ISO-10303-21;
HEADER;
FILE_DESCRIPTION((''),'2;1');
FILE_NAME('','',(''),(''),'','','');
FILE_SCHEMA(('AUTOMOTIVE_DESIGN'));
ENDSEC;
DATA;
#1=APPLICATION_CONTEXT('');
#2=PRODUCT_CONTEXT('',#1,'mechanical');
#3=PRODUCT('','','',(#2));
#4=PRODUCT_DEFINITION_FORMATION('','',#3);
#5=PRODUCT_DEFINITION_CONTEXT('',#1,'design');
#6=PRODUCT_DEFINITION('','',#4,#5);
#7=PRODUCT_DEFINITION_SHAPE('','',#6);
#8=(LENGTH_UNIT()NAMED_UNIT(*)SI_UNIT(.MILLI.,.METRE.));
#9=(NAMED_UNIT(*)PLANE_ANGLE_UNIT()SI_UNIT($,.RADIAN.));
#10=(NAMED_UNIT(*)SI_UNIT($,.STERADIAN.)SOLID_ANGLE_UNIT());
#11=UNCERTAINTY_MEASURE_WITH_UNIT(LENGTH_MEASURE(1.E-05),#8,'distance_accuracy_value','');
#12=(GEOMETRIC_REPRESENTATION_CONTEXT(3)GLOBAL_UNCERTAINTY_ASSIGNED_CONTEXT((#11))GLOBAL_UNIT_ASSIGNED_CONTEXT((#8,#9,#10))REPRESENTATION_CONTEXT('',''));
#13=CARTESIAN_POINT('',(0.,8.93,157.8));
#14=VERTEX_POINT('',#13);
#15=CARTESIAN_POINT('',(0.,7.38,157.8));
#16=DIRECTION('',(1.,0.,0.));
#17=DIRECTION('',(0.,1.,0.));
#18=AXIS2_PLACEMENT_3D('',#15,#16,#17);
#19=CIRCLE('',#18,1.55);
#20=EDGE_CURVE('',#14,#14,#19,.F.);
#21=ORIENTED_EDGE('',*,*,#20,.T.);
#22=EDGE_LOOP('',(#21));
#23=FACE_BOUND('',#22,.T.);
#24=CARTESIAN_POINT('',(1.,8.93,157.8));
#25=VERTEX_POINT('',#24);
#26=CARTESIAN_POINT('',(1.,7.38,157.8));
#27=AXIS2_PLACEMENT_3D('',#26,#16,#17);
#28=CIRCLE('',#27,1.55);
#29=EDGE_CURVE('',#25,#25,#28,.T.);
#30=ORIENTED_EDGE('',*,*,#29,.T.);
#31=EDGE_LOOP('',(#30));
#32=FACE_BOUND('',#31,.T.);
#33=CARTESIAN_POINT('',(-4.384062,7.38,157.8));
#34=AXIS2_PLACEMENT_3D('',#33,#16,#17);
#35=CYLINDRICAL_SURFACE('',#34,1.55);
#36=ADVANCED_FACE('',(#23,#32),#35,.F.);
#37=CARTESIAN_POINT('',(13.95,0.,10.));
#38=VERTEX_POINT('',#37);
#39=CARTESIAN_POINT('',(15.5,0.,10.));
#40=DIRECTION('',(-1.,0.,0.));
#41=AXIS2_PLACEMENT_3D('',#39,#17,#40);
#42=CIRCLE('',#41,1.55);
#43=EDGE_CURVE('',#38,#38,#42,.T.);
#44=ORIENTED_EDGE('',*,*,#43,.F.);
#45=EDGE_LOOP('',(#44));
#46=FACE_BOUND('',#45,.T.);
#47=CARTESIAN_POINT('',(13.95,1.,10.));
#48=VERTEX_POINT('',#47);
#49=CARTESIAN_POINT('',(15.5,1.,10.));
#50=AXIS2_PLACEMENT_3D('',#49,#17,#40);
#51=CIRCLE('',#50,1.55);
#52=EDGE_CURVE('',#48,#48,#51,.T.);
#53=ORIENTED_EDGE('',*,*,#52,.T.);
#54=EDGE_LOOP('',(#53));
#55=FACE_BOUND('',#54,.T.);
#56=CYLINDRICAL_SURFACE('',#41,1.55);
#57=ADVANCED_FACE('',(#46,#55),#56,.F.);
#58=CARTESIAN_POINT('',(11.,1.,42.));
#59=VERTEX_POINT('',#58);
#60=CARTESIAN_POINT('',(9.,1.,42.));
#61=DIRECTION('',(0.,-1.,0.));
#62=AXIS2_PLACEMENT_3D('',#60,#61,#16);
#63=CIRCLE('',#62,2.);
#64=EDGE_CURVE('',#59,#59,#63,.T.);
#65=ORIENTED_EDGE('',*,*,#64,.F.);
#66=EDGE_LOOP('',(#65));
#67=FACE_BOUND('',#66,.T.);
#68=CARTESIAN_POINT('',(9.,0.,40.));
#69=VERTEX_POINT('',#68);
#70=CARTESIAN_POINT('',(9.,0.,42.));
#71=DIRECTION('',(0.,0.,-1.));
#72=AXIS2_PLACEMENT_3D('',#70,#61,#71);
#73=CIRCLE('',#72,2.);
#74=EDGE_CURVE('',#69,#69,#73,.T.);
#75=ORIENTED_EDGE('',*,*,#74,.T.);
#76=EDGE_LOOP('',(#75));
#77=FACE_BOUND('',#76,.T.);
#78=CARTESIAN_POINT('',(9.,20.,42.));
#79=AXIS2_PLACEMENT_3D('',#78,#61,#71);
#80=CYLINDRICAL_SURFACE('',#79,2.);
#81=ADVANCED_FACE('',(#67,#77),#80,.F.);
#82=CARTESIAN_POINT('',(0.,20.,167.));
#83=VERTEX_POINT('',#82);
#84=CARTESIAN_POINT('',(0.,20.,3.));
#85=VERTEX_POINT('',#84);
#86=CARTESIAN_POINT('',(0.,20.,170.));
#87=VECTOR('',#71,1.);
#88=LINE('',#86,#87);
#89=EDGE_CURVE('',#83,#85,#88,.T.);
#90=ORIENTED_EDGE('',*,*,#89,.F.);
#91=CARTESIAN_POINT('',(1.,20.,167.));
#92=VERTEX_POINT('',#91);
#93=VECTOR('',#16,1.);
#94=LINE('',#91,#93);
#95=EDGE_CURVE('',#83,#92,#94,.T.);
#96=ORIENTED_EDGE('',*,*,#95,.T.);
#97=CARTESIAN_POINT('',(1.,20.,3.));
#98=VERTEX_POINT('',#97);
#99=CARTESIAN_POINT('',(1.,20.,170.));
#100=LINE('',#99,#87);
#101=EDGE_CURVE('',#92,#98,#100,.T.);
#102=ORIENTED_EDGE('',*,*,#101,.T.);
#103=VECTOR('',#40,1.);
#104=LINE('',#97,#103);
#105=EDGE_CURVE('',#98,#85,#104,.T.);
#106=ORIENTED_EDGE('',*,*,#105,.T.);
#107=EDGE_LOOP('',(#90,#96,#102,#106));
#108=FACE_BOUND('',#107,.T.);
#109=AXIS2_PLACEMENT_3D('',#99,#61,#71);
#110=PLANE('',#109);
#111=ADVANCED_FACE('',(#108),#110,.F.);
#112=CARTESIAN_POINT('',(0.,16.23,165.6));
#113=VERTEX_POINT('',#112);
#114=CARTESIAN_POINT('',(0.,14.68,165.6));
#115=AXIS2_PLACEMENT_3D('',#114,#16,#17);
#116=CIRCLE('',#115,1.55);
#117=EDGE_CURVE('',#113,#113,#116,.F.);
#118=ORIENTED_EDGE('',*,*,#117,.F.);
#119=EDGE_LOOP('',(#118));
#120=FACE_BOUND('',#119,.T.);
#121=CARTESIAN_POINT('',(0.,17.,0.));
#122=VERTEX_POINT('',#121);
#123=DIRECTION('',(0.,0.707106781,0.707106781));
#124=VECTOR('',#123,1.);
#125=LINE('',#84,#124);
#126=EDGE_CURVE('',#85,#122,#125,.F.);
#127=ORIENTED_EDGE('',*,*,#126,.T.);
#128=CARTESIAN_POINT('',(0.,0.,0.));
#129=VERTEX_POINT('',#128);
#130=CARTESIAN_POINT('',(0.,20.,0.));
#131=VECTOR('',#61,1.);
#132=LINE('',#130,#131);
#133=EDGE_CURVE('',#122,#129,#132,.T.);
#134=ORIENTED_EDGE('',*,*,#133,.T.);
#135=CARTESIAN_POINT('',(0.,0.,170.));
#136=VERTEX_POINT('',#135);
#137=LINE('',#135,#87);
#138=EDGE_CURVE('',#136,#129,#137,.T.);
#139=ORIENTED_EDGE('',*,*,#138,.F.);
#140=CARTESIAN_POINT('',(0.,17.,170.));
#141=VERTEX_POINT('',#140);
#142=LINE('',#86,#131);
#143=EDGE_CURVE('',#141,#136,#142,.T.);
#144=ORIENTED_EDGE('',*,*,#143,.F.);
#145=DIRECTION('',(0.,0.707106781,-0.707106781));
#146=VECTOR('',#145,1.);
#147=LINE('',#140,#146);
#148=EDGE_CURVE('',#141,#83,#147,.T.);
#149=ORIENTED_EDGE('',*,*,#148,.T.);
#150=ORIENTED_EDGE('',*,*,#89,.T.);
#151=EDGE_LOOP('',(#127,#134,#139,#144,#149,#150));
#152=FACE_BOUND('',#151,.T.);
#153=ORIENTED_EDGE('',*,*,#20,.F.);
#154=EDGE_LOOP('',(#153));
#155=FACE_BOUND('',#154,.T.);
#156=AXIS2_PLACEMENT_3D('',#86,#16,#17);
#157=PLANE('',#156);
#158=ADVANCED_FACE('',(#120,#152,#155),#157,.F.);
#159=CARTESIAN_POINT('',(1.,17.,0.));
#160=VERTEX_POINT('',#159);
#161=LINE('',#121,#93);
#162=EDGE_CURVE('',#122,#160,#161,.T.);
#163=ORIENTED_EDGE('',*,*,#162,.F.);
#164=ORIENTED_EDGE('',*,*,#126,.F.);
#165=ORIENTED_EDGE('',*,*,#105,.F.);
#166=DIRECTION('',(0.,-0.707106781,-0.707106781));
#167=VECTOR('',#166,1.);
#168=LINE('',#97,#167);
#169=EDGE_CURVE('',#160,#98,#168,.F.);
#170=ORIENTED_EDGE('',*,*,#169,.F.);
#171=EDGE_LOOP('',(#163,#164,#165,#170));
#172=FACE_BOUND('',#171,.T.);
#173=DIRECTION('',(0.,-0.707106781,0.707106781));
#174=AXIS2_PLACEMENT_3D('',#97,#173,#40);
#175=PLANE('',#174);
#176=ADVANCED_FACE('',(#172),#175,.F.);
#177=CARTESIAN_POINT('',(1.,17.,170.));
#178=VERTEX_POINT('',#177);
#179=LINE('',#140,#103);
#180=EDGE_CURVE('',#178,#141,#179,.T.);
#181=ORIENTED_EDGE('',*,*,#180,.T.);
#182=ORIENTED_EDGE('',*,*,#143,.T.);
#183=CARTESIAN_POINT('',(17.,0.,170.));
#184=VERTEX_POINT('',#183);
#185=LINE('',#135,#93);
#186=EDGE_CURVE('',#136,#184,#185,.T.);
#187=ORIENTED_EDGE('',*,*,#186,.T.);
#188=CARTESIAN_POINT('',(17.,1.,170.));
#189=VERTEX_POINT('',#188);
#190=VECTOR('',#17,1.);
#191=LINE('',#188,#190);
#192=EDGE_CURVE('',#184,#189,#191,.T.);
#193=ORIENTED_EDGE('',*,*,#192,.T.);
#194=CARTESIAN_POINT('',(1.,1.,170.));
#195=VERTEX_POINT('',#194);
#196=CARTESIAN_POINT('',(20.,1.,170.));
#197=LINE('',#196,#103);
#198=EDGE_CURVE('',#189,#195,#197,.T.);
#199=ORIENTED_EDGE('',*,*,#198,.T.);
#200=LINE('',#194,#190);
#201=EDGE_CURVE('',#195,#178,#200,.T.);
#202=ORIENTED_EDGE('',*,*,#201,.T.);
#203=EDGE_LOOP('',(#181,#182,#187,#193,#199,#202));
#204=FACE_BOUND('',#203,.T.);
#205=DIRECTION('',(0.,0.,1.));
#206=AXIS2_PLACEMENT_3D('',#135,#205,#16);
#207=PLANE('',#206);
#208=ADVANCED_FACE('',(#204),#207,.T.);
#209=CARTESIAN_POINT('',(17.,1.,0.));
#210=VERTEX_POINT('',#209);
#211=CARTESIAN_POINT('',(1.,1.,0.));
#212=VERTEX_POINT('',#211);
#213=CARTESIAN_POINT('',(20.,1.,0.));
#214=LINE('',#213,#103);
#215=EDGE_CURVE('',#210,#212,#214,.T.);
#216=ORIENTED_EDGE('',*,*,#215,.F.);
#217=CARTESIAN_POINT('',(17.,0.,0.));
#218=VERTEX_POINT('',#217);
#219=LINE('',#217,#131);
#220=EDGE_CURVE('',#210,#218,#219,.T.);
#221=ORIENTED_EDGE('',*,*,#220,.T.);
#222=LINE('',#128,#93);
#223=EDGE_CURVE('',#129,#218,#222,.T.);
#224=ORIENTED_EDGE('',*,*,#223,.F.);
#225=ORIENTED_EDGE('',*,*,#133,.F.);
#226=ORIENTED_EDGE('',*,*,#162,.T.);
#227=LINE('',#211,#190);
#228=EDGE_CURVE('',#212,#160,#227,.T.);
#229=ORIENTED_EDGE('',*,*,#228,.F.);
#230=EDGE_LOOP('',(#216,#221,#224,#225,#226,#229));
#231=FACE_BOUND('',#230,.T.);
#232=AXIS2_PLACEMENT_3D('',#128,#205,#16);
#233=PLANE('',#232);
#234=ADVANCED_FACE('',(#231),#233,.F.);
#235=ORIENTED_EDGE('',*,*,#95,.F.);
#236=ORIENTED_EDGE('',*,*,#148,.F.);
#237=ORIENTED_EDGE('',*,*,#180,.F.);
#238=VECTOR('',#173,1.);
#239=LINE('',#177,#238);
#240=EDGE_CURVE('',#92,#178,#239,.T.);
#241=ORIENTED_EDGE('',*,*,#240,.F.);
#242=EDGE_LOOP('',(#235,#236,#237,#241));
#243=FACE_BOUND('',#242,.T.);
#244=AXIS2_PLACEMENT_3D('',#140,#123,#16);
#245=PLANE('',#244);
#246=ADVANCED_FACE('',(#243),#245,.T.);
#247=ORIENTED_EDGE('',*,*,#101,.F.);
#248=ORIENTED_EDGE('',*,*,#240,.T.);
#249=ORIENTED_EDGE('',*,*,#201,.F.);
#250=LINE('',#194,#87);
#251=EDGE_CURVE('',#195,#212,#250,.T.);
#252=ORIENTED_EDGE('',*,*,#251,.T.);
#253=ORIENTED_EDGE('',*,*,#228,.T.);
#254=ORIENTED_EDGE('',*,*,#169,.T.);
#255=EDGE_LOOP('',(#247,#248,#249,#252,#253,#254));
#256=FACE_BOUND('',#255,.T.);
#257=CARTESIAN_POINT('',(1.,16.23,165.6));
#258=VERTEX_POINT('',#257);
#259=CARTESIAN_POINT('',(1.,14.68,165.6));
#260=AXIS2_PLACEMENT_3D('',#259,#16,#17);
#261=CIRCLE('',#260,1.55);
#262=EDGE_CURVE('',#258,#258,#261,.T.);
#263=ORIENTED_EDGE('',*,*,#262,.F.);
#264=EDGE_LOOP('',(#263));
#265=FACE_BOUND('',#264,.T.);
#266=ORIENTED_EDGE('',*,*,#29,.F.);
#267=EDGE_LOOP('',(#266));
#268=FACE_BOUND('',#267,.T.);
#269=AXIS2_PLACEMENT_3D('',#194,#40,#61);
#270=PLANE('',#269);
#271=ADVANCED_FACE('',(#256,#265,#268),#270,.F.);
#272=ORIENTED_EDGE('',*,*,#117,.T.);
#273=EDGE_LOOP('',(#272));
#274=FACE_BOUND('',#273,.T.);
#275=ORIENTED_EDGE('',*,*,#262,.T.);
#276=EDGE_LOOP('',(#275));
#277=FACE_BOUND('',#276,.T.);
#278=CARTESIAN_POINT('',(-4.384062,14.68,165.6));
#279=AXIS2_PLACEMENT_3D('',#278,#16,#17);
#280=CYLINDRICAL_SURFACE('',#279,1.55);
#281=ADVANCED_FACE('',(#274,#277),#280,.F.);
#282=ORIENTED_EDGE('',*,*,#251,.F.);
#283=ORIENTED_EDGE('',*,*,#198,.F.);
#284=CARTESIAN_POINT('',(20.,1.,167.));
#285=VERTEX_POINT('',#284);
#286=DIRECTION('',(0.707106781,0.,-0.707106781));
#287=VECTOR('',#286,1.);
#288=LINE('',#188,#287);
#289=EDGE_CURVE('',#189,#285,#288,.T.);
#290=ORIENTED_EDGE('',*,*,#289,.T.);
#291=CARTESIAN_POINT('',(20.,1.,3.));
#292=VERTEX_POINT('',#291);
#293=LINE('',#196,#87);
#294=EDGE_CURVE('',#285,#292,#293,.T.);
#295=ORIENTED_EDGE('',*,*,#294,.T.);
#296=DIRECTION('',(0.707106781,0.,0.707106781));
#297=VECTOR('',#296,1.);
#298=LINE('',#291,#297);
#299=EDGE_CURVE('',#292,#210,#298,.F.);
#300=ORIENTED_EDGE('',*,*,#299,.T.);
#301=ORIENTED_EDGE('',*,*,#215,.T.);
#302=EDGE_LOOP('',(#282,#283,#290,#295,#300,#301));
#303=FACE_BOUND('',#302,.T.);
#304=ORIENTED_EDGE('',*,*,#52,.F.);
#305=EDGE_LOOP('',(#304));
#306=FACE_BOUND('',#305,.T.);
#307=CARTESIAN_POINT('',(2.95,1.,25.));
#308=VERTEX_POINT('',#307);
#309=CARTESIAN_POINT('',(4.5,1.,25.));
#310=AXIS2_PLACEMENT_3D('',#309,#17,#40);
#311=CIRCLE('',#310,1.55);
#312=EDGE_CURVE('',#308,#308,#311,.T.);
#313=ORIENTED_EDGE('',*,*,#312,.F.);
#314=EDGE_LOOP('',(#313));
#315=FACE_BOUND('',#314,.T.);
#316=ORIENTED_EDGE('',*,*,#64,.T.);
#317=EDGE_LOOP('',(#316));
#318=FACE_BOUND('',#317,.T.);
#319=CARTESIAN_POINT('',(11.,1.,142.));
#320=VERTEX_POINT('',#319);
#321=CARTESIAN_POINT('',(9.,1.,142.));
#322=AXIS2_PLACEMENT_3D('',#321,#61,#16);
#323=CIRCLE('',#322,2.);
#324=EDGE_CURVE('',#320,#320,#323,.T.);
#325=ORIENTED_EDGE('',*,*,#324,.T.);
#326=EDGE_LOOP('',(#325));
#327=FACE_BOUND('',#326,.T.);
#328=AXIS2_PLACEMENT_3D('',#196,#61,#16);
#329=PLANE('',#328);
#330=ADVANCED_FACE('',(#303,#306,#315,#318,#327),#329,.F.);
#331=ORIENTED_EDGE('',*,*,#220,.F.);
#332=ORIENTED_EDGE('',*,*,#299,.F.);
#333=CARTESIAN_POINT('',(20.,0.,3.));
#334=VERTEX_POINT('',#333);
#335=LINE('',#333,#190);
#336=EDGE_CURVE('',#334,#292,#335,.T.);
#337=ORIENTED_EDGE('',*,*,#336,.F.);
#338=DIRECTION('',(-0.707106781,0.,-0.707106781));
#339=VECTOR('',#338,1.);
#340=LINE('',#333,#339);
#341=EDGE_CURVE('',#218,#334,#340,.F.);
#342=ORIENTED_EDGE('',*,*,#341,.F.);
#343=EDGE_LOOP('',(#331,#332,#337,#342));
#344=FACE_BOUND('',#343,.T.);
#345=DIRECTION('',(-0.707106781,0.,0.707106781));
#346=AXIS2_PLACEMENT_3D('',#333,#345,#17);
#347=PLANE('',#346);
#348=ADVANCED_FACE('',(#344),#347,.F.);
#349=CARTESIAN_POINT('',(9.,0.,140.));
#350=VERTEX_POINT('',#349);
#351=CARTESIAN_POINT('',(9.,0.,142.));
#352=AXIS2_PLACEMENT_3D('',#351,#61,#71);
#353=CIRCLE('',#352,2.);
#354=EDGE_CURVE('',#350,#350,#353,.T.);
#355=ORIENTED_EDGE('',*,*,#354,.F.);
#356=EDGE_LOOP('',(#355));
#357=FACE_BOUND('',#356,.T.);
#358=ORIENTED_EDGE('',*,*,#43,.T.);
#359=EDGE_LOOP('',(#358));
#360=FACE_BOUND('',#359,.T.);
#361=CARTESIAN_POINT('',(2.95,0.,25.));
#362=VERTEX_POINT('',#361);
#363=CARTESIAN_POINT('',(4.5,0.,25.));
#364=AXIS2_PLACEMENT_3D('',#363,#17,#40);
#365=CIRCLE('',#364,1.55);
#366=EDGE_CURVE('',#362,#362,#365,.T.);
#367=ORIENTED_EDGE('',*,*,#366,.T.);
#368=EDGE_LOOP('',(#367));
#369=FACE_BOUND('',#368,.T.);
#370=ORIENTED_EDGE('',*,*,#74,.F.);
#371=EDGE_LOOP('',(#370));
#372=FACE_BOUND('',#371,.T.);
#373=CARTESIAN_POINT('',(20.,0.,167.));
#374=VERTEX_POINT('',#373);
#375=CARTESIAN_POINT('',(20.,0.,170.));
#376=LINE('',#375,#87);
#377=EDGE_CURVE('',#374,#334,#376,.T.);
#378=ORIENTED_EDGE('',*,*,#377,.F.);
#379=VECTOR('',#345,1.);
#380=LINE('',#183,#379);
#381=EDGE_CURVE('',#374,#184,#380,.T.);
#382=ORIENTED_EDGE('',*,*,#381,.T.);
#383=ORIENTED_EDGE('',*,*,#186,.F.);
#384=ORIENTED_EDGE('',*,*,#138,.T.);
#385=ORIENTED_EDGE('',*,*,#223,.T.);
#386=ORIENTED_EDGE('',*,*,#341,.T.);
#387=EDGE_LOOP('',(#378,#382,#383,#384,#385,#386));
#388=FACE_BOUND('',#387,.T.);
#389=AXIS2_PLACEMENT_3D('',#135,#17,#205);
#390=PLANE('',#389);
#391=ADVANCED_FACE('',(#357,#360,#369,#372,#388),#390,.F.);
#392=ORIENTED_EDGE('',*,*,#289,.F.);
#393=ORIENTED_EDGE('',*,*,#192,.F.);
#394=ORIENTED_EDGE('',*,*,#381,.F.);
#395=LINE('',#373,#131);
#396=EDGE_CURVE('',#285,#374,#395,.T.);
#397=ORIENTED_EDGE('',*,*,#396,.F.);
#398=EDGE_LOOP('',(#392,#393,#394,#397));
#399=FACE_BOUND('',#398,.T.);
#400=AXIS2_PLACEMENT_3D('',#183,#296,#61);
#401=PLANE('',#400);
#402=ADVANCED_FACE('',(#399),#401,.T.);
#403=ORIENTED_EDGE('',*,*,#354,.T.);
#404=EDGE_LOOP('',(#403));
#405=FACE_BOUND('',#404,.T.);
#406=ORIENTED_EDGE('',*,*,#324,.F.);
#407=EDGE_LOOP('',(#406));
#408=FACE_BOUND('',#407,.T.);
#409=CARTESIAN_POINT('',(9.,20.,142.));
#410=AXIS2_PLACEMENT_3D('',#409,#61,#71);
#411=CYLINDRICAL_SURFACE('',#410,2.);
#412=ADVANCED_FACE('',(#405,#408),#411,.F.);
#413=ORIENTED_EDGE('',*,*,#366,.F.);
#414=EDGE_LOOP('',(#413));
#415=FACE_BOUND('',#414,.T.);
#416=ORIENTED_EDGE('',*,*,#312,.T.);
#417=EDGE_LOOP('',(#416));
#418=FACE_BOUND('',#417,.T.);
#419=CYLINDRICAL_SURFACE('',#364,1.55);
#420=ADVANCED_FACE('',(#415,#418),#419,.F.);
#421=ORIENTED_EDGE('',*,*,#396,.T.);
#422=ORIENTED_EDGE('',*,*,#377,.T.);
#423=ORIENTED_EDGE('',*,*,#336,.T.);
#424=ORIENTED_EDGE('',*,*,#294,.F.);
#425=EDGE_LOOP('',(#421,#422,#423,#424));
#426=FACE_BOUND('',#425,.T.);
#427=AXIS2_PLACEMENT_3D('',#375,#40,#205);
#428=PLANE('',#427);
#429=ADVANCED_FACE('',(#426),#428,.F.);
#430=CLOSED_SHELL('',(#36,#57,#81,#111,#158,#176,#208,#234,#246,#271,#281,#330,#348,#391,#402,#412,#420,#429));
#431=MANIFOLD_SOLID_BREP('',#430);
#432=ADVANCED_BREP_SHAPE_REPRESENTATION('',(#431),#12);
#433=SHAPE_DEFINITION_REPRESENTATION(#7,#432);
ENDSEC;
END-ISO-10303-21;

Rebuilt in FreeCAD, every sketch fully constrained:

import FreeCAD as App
import Part
import Sketcher
Q = App.Units.Quantity


def edges_at(feature, points):
    """Names of the edges that pass closest to the given points."""
    edges = feature.Shape.Edges
    near = lambda p: min(range(len(edges)), key=lambda i: edges[i].distToShape(Part.Vertex(*p))[0])
    return sorted({f"Edge{near(p) + 1}" for p in points})

doc = App.newDocument("Part")
body = doc.addObject("PartDesign::Body", "Body")

# Sketch on XY plane
sketch1 = doc.addObject("Sketcher::SketchObject", "Sketch")
body.addObject(sketch1)
sketch1.AttachmentSupport = (doc.XY_Plane, [""])
sketch1.MapMode = "FlatFace"
sketch1.addGeometry(Part.LineSegment(App.Vector(0, 0, 0), App.Vector(20, 0, 0)), False)
sketch1.addGeometry(Part.LineSegment(App.Vector(20, 0, 0), App.Vector(20, 1, 0)), False)
sketch1.addGeometry(Part.LineSegment(App.Vector(20, 1, 0), App.Vector(1, 1, 0)), False)
sketch1.addGeometry(Part.LineSegment(App.Vector(1, 1, 0), App.Vector(1, 20, 0)), False)
sketch1.addGeometry(Part.LineSegment(App.Vector(1, 20, 0), App.Vector(0, 20, 0)), False)
sketch1.addGeometry(Part.LineSegment(App.Vector(0, 20, 0), App.Vector(0, 0, 0)), False)
sketch1.addConstraint(Sketcher.Constraint("Coincident", 0, 2, 1, 1))
sketch1.addConstraint(Sketcher.Constraint("Coincident", 1, 2, 2, 1))
sketch1.addConstraint(Sketcher.Constraint("Coincident", 2, 2, 3, 1))
sketch1.addConstraint(Sketcher.Constraint("Coincident", 3, 2, 4, 1))
sketch1.addConstraint(Sketcher.Constraint("Coincident", 4, 2, 5, 1))
sketch1.addConstraint(Sketcher.Constraint("Coincident", 5, 2, 0, 1))
sketch1.addConstraint(Sketcher.Constraint("Horizontal", 0))
sketch1.addConstraint(Sketcher.Constraint("Vertical", 1))
sketch1.addConstraint(Sketcher.Constraint("Horizontal", 2))
sketch1.addConstraint(Sketcher.Constraint("Vertical", 3))
sketch1.addConstraint(Sketcher.Constraint("Horizontal", 4))
sketch1.addConstraint(Sketcher.Constraint("Vertical", 5))
sketch1.addConstraint(Sketcher.Constraint("Coincident", 5, 2, -1, 1))
sketch1.addConstraint(Sketcher.Constraint("Equal", 4, 1))
sketch1.addConstraint(Sketcher.Constraint("Equal", 2, 3))
sketch1.addConstraint(Sketcher.Constraint("DistanceX", 0, 1, 0, 2, Q("20 mm")))
sketch1.addConstraint(Sketcher.Constraint("DistanceX", 2, 2, 2, 1, Q("19 mm")))
pad1 = doc.addObject("PartDesign::Pad", "Pad")
body.addObject(pad1)
pad1.Profile = sketch1
pad1.Length = 170
doc.recompute()

chamfer = doc.addObject("PartDesign::Chamfer", "Chamfer")
body.addObject(chamfer)
chamfer.Base = (pad1, edges_at(pad1, [
    (20, 0.5, 170),
    (0.5, 20, 170),
    (0.5, 20, 0),
    (20, 0.5, 0),
]))
chamfer.Size = 3

# Sketch on XZ plane
sketch2 = doc.addObject("Sketcher::SketchObject", "Sketch001")
body.addObject(sketch2)
sketch2.AttachmentSupport = (doc.XZ_Plane, [""])
sketch2.MapMode = "FlatFace"
sketch2.AttachmentOffset = App.Placement(App.Vector(0, 0, -1), App.Rotation())
sketch2.addGeometry(Part.Circle(App.Vector(15.5, 10, 0), App.Vector(0, 0, 1), 1.55), False)
sketch2.addGeometry(Part.Circle(App.Vector(4.5, 25, 0), App.Vector(0, 0, 1), 1.55), False)
sketch2.addConstraint(Sketcher.Constraint("Equal", 0, 1))
sketch2.addConstraint(Sketcher.Constraint("Diameter", 0, Q("3.1 mm")))
sketch2.addConstraint(Sketcher.Constraint("DistanceY", -1, 1, 0, 3, Q("10 mm")))
sketch2.addConstraint(Sketcher.Constraint("DistanceY", -1, 1, 1, 3, Q("25 mm")))
sketch2.addConstraint(Sketcher.Constraint("DistanceX", 1, 3, 0, 3, Q("11 mm")))
sketch2.addConstraint(Sketcher.Constraint("DistanceX", -1, 1, 0, 3, Q("15.5 mm")))
pocket1 = doc.addObject("PartDesign::Pocket", "Pocket")
body.addObject(pocket1)
pocket1.Profile = sketch2
pocket1.Type = "ThroughAll"
pocket1.Reversed = True

# Sketch on YZ plane
sketch3 = doc.addObject("Sketcher::SketchObject", "Sketch002")
body.addObject(sketch3)
sketch3.AttachmentSupport = (doc.YZ_Plane, [""])
sketch3.MapMode = "FlatFace"
sketch3.AttachmentOffset = App.Placement(App.Vector(0, 0, 1), App.Rotation())
sketch3.addGeometry(Part.Circle(App.Vector(14.68, 165.6, 0), App.Vector(0, 0, 1), 1.55), False)
sketch3.addGeometry(Part.Circle(App.Vector(7.38, 157.8, 0), App.Vector(0, 0, 1), 1.55), False)
sketch3.addConstraint(Sketcher.Constraint("Equal", 0, 1))
sketch3.addConstraint(Sketcher.Constraint("Diameter", 0, Q("3.1 mm")))
sketch3.addConstraint(Sketcher.Constraint("DistanceY", -1, 1, 0, 3, Q("165.6 mm")))
sketch3.addConstraint(Sketcher.Constraint("DistanceY", -1, 1, 1, 3, Q("157.8 mm")))
sketch3.addConstraint(Sketcher.Constraint("DistanceX", 1, 3, 0, 3, Q("7.3 mm")))
sketch3.addConstraint(Sketcher.Constraint("DistanceX", -1, 1, 0, 3, Q("14.68 mm")))
pocket2 = doc.addObject("PartDesign::Pocket", "Pocket001")
body.addObject(pocket2)
pocket2.Profile = sketch3
pocket2.Length = 1

# Sketch on XZ plane
sketch4 = doc.addObject("Sketcher::SketchObject", "Sketch003")
body.addObject(sketch4)
sketch4.AttachmentSupport = (doc.XZ_Plane, [""])
sketch4.MapMode = "FlatFace"
sketch4.addGeometry(Part.Circle(App.Vector(9, 142, 0), App.Vector(0, 0, 1), 2), False)
sketch4.addGeometry(Part.Circle(App.Vector(9, 42, 0), App.Vector(0, 0, 1), 2), False)
sketch4.addConstraint(Sketcher.Constraint("Equal", 0, 1))
sketch4.addConstraint(Sketcher.Constraint("Vertical", 0, 3, 1, 3))
sketch4.addConstraint(Sketcher.Constraint("Diameter", 0, Q("4 mm")))
sketch4.addConstraint(Sketcher.Constraint("DistanceX", -1, 1, 0, 3, Q("9 mm")))
sketch4.addConstraint(Sketcher.Constraint("DistanceY", -1, 1, 0, 3, Q("142 mm")))
sketch4.addConstraint(Sketcher.Constraint("DistanceY", -1, 1, 1, 3, Q("42 mm")))
pocket3 = doc.addObject("PartDesign::Pocket", "Pocket002")
body.addObject(pocket3)
pocket3.Profile = sketch4
pocket3.Type = "ThroughAll"

doc.recompute()
